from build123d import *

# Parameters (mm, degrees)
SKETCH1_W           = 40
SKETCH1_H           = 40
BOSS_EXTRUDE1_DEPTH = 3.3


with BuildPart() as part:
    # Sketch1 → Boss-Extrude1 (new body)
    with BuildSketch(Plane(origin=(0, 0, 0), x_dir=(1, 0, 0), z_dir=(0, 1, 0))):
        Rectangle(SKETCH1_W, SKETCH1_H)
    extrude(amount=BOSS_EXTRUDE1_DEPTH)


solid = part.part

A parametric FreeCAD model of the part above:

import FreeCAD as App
import Part
import Sketcher
from FreeCAD import Vector
Q = App.Units.Quantity

doc = App.newDocument("Part")
params = doc.addObject("Spreadsheet::Sheet", "Params")
for row, (alias, value) in enumerate([
    ("sketch1_width", "40 mm"),
    ("pad1_length", "3.3 mm"),
], start=1):
    params.set(f"A{row}", alias)
    params.set(f"B{row}", "=" + value)
    params.setAlias(f"B{row}", alias)

body = doc.addObject("PartDesign::Body", "Body")

# Sketch on XZ plane
sketch1 = body.newObject("Sketcher::SketchObject", "Sketch")
sketch1.AttachmentSupport = (doc.getObject("XZ_Plane"), [""])
sketch1.MapMode = "FlatFace"
sketch1.addGeometry([
    Part.LineSegment(Vector(-20, -20, 0), Vector(-20, 20, 0)),
    Part.LineSegment(Vector(-20, 20, 0), Vector(20, 20, 0)),
    Part.LineSegment(Vector(20, 20, 0), Vector(20, -20, 0)),
    Part.LineSegment(Vector(20, -20, 0), Vector(-20, -20, 0)),
], False)
sketch1.addConstraint([
    Sketcher.Constraint("Coincident", 0, 2, 1, 1),
    Sketcher.Constraint("Coincident", 1, 2, 2, 1),
    Sketcher.Constraint("Coincident", 2, 2, 3, 1),
    Sketcher.Constraint("Coincident", 3, 2, 0, 1),
    Sketcher.Constraint("Vertical", 0),
    Sketcher.Constraint("Horizontal", 1),
    Sketcher.Constraint("Vertical", 2),
    Sketcher.Constraint("Horizontal", 3),
    Sketcher.Constraint("Symmetric", 0, 2, 2, 2, -1, 1),
    Sketcher.Constraint("Equal", 3, 0),
    Sketcher.Constraint("DistanceX", 1, 1, 1, 2, Q("40 mm")),
])
sketch1.setExpression("Constraints[10]", "Params.sketch1_width")
pad1 = body.newObject("PartDesign::Pad", "Pad")
pad1.Profile = sketch1
pad1.setExpression("Length", "Params.pad1_length")
pad1.Reversed = True

doc.recompute()
